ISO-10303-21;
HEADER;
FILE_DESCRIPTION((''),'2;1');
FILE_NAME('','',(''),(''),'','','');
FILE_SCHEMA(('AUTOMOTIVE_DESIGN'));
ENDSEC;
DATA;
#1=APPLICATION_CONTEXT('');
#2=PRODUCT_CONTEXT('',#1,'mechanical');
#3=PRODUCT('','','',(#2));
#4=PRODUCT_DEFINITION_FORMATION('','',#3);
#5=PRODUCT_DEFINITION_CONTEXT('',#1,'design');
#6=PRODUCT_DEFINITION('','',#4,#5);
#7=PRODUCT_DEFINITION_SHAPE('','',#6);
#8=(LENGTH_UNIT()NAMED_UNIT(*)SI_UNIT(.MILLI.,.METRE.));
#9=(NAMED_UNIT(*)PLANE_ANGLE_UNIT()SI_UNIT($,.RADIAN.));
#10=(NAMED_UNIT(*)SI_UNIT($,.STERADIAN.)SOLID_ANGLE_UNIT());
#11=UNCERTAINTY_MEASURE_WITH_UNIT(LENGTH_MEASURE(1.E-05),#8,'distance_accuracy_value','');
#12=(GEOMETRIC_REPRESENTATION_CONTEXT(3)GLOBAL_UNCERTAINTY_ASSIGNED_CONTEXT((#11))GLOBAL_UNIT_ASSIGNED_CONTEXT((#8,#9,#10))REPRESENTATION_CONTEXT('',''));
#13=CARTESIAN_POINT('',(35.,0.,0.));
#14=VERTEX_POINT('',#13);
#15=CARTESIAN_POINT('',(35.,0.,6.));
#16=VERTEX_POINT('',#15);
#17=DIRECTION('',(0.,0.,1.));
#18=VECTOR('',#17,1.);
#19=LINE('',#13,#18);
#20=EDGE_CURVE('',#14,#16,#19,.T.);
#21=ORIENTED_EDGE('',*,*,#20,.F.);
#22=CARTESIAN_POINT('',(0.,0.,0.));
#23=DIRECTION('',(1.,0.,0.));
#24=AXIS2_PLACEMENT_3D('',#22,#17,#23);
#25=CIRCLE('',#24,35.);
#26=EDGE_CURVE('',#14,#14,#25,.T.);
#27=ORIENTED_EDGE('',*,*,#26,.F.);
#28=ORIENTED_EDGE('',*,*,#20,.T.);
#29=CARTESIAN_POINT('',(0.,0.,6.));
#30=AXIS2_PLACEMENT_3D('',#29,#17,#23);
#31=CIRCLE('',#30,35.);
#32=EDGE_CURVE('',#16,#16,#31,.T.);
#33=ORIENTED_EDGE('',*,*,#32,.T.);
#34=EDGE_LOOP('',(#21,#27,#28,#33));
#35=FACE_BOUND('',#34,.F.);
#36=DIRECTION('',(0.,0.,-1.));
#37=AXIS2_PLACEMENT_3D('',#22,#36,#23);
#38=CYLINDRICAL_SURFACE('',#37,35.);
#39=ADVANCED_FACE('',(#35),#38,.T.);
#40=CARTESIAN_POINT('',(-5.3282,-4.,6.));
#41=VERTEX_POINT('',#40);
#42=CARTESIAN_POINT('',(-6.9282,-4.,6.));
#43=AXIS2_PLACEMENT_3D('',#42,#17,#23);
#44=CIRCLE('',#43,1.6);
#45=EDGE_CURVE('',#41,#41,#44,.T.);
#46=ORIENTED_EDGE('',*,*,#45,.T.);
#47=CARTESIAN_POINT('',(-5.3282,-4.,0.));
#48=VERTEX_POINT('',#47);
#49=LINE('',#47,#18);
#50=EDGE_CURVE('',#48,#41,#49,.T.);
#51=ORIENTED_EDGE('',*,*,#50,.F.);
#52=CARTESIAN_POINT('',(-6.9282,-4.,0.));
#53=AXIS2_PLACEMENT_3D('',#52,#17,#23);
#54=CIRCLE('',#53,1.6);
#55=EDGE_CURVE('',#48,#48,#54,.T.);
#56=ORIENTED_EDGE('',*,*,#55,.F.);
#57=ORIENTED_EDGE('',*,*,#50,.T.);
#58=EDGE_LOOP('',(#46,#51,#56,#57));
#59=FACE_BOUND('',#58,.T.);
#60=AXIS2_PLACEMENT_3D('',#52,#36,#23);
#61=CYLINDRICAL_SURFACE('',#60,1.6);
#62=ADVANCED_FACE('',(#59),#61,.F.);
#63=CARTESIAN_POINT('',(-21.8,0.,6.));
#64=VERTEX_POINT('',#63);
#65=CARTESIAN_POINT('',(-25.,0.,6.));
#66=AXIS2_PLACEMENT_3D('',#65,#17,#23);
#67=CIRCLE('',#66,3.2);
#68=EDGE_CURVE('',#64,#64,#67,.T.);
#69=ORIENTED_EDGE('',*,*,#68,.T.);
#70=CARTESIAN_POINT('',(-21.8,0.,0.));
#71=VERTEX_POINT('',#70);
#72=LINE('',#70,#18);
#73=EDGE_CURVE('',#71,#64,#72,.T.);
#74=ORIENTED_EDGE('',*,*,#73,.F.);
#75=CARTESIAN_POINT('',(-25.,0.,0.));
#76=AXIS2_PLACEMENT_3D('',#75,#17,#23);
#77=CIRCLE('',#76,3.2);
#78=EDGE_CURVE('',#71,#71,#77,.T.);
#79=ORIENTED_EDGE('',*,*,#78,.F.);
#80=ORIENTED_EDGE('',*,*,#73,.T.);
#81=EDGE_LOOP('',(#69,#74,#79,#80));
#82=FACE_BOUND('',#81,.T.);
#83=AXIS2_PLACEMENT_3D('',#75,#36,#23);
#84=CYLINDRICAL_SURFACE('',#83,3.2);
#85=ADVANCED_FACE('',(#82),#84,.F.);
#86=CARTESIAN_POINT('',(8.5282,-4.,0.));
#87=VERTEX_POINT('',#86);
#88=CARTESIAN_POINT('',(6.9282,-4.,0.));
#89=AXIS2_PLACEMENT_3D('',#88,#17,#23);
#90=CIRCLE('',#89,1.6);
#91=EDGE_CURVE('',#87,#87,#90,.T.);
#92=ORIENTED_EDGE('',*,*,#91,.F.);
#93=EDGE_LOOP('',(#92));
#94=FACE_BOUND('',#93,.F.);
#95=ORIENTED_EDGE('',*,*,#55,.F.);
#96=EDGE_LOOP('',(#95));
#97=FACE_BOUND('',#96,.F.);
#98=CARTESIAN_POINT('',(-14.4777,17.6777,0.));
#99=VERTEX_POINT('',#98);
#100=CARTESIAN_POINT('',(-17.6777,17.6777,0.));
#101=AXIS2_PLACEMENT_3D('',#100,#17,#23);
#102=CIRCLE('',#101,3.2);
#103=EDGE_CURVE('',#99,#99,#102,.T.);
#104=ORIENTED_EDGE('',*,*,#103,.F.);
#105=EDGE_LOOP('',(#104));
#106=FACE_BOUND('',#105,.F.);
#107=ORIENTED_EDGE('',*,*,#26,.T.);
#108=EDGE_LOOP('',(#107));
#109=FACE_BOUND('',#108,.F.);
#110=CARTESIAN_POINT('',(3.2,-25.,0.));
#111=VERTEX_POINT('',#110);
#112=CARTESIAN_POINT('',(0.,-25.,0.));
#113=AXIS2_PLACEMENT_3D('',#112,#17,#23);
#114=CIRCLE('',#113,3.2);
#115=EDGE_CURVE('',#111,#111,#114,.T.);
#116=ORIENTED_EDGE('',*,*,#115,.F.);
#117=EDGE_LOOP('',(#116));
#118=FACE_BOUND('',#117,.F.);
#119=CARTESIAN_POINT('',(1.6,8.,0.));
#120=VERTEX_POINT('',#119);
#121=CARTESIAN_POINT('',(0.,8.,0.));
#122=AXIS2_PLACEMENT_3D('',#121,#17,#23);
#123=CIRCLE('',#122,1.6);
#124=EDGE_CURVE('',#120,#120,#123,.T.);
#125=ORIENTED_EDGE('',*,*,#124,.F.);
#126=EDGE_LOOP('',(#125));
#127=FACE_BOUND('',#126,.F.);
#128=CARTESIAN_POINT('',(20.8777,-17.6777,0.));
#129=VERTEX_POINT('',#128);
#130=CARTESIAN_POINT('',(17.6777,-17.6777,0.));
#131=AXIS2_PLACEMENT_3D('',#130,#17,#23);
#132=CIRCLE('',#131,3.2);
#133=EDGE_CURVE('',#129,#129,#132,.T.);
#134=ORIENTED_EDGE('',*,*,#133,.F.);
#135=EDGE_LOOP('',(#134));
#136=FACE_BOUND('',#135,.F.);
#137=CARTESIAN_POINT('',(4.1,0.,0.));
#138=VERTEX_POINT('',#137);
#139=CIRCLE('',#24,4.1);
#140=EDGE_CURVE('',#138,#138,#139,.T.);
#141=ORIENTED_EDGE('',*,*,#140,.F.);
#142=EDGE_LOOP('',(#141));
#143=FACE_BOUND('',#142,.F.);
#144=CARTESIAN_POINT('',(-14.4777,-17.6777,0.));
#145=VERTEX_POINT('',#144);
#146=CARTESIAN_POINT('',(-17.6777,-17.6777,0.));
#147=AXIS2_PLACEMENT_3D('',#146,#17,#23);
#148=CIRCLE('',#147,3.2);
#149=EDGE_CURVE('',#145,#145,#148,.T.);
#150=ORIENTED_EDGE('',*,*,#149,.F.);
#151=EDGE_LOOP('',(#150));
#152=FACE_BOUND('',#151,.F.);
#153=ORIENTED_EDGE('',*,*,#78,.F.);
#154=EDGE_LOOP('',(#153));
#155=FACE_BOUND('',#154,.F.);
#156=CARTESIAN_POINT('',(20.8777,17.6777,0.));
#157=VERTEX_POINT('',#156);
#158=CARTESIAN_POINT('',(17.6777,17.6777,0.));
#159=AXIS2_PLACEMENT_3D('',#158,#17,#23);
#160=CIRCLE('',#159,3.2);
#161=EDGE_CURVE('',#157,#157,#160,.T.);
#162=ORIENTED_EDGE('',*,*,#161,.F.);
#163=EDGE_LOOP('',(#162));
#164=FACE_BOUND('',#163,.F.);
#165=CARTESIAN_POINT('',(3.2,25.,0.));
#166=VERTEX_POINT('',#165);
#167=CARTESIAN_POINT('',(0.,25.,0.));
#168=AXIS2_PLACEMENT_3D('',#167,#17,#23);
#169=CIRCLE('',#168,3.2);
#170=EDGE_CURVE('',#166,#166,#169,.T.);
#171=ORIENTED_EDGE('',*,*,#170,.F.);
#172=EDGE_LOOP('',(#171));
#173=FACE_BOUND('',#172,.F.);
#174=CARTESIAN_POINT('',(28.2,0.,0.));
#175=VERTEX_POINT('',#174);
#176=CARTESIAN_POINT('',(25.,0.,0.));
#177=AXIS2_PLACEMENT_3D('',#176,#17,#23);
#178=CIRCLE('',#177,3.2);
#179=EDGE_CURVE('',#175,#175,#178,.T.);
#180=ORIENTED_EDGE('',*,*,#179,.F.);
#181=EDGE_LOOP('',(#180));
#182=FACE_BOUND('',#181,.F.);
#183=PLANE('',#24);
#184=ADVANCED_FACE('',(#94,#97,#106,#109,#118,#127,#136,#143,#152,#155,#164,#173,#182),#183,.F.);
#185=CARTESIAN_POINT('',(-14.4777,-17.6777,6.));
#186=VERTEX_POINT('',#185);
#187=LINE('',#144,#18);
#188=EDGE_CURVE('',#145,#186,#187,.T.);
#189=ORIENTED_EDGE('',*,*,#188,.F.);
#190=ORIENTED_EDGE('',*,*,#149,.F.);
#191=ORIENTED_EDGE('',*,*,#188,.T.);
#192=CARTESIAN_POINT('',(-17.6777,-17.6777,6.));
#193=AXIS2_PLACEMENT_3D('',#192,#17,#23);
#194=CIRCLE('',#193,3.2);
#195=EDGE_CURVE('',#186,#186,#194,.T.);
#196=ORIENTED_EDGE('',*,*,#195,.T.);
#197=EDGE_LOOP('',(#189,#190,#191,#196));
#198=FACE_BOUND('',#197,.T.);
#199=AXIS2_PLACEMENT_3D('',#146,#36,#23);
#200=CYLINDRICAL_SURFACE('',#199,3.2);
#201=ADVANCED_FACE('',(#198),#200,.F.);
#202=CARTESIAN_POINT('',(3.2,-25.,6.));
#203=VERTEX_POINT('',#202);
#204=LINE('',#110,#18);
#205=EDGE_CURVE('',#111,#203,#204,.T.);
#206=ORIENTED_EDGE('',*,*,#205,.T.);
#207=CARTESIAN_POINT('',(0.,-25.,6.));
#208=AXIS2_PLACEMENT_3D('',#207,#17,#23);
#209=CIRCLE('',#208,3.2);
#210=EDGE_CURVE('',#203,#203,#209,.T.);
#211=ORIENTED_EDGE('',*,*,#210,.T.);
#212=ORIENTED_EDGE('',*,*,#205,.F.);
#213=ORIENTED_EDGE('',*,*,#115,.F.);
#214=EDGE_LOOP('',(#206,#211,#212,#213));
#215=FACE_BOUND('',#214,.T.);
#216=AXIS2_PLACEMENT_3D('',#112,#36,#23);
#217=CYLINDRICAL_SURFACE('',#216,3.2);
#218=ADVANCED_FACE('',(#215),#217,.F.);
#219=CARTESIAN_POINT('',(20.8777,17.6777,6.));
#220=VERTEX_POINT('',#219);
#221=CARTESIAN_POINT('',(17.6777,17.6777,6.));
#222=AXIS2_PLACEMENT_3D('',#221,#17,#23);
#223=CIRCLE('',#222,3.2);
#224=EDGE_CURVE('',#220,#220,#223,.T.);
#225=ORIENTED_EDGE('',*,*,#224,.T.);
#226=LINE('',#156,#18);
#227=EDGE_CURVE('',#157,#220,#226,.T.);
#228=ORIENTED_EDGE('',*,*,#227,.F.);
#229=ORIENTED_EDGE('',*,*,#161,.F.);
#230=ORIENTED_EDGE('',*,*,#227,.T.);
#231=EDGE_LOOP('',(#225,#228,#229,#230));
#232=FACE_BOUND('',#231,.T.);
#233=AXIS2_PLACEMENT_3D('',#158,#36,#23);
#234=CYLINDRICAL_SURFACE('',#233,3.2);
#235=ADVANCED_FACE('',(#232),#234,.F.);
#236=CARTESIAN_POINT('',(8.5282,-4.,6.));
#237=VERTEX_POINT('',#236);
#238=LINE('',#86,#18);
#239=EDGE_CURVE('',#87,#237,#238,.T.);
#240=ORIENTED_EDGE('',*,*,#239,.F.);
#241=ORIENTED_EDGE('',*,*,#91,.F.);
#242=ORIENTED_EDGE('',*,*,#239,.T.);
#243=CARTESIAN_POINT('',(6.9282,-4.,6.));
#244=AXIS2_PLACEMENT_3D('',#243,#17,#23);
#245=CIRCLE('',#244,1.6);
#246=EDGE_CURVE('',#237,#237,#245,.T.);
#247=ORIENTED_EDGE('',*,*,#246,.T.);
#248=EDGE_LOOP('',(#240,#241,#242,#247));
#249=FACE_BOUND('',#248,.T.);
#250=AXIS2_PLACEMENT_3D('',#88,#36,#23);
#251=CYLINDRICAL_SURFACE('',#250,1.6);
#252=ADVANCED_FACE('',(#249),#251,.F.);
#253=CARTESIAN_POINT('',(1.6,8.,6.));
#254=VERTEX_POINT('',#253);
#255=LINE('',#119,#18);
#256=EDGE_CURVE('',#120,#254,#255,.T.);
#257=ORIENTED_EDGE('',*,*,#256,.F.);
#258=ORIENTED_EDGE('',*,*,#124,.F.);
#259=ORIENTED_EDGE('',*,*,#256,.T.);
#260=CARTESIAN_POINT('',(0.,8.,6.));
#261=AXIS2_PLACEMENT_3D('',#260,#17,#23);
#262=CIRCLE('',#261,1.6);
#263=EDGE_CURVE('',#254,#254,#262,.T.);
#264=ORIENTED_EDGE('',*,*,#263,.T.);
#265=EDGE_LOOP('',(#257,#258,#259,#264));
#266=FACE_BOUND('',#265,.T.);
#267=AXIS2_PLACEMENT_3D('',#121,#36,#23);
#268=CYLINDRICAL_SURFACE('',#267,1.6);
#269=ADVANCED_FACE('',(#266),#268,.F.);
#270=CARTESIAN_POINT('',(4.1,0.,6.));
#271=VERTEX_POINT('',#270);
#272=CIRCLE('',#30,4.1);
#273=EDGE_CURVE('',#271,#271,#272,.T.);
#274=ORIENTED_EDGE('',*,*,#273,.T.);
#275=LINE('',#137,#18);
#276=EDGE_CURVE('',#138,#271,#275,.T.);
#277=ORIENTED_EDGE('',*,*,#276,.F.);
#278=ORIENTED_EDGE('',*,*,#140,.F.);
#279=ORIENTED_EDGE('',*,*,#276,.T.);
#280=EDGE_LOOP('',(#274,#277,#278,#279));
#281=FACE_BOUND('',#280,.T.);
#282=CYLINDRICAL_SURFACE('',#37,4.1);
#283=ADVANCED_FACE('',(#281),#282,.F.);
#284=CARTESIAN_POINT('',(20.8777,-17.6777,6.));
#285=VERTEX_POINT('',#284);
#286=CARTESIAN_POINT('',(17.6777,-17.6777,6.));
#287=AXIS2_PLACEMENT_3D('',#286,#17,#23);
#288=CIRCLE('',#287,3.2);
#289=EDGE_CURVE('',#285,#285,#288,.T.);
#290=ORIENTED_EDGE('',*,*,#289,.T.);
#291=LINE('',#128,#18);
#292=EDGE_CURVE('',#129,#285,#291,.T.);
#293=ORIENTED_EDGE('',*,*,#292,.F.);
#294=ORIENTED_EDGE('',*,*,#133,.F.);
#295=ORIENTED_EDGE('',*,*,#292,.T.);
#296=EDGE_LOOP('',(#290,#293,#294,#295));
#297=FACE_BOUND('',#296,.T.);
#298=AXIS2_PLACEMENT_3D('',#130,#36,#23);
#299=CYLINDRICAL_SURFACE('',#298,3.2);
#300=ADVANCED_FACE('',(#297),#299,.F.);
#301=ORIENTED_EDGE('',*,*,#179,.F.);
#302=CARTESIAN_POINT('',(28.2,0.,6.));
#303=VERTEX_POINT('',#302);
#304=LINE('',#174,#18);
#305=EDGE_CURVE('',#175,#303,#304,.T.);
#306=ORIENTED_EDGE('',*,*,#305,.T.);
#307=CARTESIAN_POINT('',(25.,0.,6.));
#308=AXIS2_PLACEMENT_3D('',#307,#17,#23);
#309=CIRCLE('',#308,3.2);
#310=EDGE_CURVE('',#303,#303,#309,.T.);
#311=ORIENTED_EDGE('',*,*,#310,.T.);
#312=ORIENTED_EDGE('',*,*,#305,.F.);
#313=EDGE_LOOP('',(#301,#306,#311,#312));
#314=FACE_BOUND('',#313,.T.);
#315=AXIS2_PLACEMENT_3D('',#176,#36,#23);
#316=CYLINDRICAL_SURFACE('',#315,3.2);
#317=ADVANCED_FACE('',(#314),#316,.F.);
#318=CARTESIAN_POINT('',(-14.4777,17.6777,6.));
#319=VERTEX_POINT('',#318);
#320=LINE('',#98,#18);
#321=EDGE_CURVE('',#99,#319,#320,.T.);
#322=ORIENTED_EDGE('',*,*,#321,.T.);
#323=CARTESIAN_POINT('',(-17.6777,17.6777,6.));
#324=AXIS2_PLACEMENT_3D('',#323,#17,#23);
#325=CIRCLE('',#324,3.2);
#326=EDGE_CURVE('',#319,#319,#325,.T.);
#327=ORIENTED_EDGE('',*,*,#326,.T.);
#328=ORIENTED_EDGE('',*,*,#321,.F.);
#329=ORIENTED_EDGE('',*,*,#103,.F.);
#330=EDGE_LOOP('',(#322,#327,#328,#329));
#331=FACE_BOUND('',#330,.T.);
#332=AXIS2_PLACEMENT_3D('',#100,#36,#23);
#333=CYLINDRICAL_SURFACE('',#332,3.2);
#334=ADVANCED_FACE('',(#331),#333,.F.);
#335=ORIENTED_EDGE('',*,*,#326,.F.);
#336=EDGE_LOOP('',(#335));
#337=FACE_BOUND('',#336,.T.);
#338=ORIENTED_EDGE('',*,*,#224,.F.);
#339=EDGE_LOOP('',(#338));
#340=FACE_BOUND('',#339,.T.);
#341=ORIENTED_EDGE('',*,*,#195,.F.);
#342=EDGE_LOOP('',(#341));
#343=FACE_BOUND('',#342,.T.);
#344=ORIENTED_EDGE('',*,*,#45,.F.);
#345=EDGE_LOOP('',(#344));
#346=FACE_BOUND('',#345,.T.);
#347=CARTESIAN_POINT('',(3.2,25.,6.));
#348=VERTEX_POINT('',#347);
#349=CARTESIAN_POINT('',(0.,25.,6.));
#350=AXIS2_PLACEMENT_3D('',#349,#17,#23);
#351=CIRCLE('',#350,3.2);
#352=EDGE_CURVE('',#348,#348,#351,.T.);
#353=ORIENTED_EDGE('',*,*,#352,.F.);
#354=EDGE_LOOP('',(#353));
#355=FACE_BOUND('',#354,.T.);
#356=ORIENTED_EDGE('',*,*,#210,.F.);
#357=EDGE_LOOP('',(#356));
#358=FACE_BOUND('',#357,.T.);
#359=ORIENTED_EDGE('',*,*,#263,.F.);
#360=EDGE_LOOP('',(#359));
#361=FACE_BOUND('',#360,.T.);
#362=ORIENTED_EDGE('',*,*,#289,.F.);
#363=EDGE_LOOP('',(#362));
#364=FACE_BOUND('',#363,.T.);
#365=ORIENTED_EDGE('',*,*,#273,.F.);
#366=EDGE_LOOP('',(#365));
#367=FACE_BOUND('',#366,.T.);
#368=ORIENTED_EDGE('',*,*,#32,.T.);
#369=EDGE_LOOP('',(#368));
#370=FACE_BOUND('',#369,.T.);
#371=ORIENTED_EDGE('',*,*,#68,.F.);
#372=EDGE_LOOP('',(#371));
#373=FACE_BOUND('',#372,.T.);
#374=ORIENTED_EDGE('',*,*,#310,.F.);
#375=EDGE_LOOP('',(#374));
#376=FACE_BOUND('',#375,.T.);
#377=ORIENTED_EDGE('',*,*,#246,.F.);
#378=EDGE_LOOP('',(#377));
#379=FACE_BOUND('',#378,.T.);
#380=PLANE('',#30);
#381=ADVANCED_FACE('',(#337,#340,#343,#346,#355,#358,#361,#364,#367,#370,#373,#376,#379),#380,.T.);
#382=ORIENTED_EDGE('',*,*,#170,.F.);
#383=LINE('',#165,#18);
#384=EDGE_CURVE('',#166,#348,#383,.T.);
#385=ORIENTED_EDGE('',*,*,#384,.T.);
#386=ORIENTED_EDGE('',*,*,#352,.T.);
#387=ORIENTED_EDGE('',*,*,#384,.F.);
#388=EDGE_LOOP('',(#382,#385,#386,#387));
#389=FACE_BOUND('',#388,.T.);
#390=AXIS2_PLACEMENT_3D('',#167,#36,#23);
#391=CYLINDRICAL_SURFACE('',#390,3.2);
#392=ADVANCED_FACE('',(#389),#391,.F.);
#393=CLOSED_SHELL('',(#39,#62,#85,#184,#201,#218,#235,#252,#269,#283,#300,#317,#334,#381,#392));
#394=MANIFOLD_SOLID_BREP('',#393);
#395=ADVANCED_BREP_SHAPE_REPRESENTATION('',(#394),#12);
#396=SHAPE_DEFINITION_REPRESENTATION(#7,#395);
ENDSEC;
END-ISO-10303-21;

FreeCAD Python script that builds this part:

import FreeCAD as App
import Part
import Sketcher
from FreeCAD import Vector

doc = App.newDocument("Part")
body = doc.addObject("PartDesign::Body", "Body")

# Sketch on XY plane
sketch1 = body.newObject("Sketcher::SketchObject", "Sketch")
sketch1.AttachmentSupport = (doc.getObject("XY_Plane"), [""])
sketch1.MapMode = "FlatFace"
sketch1.addGeometry(Part.Circle(Vector(0, 0, 0), Vector(0, 0, 1), 35), False)
sketch1.addGeometry(Part.Circle(Vector(-17.7, -17.7, 0), Vector(0, 0, 1), 3.2), False)
sketch1.addGeometry(Part.Circle(Vector(-6.9, -4, 0), Vector(0, 0, 1), 1.6), False)
sketch1.addGeometry(Part.Circle(Vector(0, -25, 0), Vector(0, 0, 1), 3.2), False)
sketch1.addGeometry(Part.Circle(Vector(17.7, -17.7, 0), Vector(0, 0, 1), 3.2), False)
sketch1.addGeometry(Part.Circle(Vector(6.9, -4, 0), Vector(0, 0, 1), 1.6), False)
sketch1.addGeometry(Part.Circle(Vector(-25, 0, 0), Vector(0, 0, 1), 3.2), False)
sketch1.addGeometry(Part.Circle(Vector(-17.7, 17.7, 0), Vector(0, 0, 1), 3.2), False)
sketch1.addGeometry(Part.Circle(Vector(0, 0, 0), Vector(0, 0, 1), 4.1), False)
sketch1.addGeometry(Part.Circle(Vector(0, 8, 0), Vector(0, 0, 1), 1.6), False)
sketch1.addGeometry(Part.Circle(Vector(25, 0, 0), Vector(0, 0, 1), 3.2), False)
sketch1.addGeometry(Part.Circle(Vector(17.7, 17.7, 0), Vector(0, 0, 1), 3.2), False)
sketch1.addGeometry(Part.Circle(Vector(0, 25, 0), Vector(0, 0, 1), 3.2), False)
sketch1.addConstraint(Sketcher.Constraint("Coincident", 0, 3, -1, 1))
sketch1.addConstraint(Sketcher.Constraint("Coincident", 8, 3, -1, 1))
sketch1.addConstraint(Sketcher.Constraint("Equal", 1, 3))
sketch1.addConstraint(Sketcher.Constraint("Equal", 3, 4))
sketch1.addConstraint(Sketcher.Constraint("Equal", 2, 5))
sketch1.addConstraint(Sketcher.Constraint("Equal", 4, 6))
sketch1.addConstraint(Sketcher.Constraint("Equal", 6, 7))
sketch1.addConstraint(Sketcher.Constraint("Equal", 5, 9))
sketch1.addConstraint(Sketcher.Constraint("Equal", 7, 10))
sketch1.addConstraint(Sketcher.Constraint("Equal", 10, 11))
sketch1.addConstraint(Sketcher.Constraint("Equal", 11, 12))
sketch1.addConstraint(Sketcher.Constraint("Symmetric", 4, 3, 7, 3, -1, 1))
sketch1.addConstraint(Sketcher.Constraint("Symmetric", 6, 3, 10, 3, -1, 1))
sketch1.addConstraint(Sketcher.Constraint("Symmetric", 1, 3, 11, 3, -1, 1))
sketch1.addConstraint(Sketcher.Constraint("Symmetric", 3, 3, 12, 3, -1, 1))
sketch1.addConstraint(Sketcher.Constraint("Symmetric", 1, 3, 4, 3, -2))
sketch1.addConstraint(Sketcher.Constraint("Symmetric", 2, 3, 5, 3, -2))
sketch1.addConstraint(Sketcher.Constraint("PointOnObject", 3, 3, -2))
sketch1.addConstraint(Sketcher.Constraint("PointOnObject", 6, 3, -1))
sketch1.addConstraint(Sketcher.Constraint("PointOnObject", 9, 3, -2))
sketch1.addConstraint(Sketcher.Constraint("Diameter", 0, 70.0))
sketch1.addConstraint(Sketcher.Constraint("Diameter", 1, 6.4))
sketch1.addConstraint(Sketcher.Constraint("Diameter", 2, 3.2))
sketch1.addConstraint(Sketcher.Constraint("Diameter", 8, 8.2))
sketch1.addConstraint(Sketcher.Constraint("DistanceY", 2, 3, -1, 1, 4.0))
sketch1.addConstraint(Sketcher.Constraint("DistanceY", 3, 3, -1, 1, 25.0))
sketch1.addConstraint(Sketcher.Constraint("DistanceX", 6, 3, -1, 1, 25.0))
sketch1.addConstraint(Sketcher.Constraint("DistanceY", -1, 1, 9, 3, 8.0))
sketch1.addConstraint(Sketcher.Constraint("DistanceX", 2, 3, 4, 3, 24.606))
sketch1.addConstraint(Sketcher.Constraint("DistanceX", 1, 3, -1, 1, 17.6777))
sketch1.addConstraint(Sketcher.Constraint("DistanceY", 1, 3, -1, 1, 17.6777))
pad1 = body.newObject("PartDesign::Pad", "Pad")
pad1.Profile = sketch1
pad1.Length = 6

doc.recompute()
